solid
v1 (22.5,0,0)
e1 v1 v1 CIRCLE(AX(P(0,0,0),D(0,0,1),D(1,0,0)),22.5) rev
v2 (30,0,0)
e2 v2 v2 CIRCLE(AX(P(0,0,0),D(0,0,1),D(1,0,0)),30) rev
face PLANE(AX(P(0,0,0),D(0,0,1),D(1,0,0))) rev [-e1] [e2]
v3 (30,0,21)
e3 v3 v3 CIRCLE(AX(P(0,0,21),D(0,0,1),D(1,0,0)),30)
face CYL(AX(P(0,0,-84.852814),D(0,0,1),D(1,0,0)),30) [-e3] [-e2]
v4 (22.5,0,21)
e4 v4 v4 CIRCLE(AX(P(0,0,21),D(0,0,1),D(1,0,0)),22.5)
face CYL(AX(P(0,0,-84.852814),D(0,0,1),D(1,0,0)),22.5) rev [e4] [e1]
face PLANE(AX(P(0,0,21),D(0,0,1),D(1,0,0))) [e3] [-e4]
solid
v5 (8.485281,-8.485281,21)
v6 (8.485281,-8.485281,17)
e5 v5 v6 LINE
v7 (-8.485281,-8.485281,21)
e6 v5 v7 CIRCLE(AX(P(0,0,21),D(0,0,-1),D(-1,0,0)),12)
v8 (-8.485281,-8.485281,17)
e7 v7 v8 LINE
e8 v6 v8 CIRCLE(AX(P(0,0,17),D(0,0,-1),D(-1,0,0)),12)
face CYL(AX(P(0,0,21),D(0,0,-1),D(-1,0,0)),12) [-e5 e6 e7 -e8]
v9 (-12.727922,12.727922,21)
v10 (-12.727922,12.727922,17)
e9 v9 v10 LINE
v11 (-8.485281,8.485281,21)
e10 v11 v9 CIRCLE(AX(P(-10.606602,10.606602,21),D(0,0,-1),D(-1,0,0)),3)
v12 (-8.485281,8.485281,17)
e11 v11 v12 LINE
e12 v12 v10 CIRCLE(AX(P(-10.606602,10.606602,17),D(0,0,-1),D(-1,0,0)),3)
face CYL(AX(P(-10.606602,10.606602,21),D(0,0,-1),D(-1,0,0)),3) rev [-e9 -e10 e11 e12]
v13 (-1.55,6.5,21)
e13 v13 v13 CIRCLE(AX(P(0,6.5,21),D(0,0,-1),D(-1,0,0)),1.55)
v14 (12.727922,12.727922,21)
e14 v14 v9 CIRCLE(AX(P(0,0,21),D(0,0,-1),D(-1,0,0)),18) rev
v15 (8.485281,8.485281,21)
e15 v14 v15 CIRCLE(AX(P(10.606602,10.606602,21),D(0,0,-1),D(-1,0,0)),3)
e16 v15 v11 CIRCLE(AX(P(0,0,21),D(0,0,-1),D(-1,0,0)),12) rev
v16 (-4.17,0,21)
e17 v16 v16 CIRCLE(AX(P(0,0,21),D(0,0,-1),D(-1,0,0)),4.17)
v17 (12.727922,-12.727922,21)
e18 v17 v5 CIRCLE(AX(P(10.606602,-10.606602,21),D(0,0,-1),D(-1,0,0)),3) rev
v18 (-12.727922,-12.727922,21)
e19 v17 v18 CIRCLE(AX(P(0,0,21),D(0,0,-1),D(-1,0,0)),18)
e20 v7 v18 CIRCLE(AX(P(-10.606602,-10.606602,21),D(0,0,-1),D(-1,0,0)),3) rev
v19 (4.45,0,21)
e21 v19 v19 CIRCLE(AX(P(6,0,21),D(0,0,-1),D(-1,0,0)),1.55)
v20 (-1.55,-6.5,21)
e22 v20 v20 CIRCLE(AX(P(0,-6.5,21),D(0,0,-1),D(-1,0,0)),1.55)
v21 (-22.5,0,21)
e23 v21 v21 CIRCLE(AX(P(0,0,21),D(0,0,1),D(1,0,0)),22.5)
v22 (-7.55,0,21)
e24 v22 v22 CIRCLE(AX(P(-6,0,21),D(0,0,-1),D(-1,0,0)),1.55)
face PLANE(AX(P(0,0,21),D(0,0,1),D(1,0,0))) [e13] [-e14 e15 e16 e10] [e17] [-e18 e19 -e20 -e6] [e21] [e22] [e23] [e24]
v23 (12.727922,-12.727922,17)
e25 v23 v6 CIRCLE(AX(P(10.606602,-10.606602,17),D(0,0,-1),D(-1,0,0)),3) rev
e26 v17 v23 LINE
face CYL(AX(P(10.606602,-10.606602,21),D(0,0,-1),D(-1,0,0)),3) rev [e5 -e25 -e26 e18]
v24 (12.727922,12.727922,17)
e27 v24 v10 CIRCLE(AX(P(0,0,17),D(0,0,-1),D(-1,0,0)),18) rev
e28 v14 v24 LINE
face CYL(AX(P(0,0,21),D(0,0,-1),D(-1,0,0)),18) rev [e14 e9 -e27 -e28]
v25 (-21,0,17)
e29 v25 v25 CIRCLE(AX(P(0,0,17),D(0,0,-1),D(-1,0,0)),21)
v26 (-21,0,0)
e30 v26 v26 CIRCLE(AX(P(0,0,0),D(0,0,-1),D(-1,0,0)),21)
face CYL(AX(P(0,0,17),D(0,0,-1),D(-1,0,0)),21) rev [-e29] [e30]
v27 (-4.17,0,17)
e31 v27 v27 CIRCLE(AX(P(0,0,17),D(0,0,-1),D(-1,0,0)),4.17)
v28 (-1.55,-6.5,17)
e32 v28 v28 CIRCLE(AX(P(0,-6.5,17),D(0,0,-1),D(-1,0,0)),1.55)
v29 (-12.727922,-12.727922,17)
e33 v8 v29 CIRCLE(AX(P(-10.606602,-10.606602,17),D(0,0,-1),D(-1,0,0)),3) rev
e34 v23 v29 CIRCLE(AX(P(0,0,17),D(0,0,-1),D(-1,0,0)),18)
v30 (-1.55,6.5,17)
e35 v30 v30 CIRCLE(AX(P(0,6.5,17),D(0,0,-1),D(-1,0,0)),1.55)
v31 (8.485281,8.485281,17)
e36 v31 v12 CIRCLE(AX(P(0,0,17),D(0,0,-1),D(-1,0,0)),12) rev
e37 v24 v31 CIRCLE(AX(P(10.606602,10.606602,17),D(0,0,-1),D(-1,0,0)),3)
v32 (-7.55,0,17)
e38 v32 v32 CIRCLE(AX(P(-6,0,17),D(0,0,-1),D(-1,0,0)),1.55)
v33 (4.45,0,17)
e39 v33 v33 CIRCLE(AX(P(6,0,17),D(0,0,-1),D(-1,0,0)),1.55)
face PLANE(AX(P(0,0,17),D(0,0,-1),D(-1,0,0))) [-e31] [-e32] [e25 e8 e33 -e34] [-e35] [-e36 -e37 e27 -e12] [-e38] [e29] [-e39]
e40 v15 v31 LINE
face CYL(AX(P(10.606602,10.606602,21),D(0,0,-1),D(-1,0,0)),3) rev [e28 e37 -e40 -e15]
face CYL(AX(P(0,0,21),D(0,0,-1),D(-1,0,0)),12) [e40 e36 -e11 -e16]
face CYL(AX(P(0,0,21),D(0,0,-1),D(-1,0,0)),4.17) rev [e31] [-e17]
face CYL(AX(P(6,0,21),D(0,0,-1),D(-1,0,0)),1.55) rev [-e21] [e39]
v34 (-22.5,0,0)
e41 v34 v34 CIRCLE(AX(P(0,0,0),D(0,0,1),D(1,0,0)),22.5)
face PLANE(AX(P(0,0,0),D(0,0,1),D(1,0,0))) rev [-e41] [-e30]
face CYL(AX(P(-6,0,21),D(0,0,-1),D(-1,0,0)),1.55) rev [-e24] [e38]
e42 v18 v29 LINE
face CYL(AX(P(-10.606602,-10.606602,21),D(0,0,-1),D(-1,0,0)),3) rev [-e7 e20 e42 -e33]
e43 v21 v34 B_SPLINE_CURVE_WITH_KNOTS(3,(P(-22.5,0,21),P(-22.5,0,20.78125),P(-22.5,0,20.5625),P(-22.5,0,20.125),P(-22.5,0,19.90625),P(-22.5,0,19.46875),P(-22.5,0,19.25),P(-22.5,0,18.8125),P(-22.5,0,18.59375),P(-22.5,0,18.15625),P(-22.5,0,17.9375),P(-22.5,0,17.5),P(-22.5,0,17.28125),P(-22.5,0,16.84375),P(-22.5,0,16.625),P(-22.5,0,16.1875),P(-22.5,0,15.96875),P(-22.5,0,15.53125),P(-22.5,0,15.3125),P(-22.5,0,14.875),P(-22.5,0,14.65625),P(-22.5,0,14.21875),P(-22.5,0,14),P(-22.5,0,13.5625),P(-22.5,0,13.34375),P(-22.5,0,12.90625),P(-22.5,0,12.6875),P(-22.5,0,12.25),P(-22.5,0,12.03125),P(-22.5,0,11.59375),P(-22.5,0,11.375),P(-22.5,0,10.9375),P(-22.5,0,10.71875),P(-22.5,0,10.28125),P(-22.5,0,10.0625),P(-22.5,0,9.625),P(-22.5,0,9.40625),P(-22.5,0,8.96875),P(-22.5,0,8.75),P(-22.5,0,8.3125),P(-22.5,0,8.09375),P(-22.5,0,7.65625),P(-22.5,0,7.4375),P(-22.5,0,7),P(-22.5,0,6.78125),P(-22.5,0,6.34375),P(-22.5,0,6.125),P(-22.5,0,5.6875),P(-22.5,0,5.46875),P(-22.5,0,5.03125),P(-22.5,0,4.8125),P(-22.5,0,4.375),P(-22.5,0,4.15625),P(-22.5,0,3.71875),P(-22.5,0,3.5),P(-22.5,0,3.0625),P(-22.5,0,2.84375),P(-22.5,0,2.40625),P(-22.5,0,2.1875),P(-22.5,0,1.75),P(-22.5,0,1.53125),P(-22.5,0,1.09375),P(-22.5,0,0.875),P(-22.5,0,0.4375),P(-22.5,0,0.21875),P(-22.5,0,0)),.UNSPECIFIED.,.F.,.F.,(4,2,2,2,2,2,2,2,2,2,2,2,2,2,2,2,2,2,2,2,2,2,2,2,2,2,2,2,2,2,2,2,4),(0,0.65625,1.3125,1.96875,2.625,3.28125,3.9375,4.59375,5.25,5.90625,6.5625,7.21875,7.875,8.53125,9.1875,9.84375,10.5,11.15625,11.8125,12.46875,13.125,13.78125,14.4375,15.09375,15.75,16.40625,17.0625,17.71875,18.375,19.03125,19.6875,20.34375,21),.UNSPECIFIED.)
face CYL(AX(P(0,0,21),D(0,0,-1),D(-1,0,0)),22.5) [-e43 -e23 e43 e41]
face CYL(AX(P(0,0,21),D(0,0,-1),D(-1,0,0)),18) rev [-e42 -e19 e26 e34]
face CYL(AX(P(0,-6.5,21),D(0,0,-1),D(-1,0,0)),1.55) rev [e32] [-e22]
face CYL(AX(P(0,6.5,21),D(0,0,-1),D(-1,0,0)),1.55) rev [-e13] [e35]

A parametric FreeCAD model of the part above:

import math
import FreeCAD as App
import Part
import Sketcher
from FreeCAD import Vector

doc = App.newDocument("Part")
body = doc.addObject("PartDesign::Body", "Body")

# Sketch on XY plane
sketch1 = body.newObject("Sketcher::SketchObject", "Sketch")
sketch1.AttachmentSupport = (doc.getObject("XY_Plane"), [""])
sketch1.MapMode = "FlatFace"
sketch1.addGeometry(Part.Circle(Vector(0, 0, 0), Vector(0, 0, 1), 22), False)
sketch1.addConstraint([
    Sketcher.Constraint("Coincident", 0, 3, -1, 1),
    Sketcher.Constraint("Diameter", 0, 45.0),
])
pad1 = body.newObject("PartDesign::Pad", "Pad")
pad1.Profile = sketch1
pad1.Length = 21

# Sketch on XY plane
sketch2 = body.newObject("Sketcher::SketchObject", "Sketch001")
sketch2.AttachmentSupport = (doc.getObject("XY_Plane"), [""])
sketch2.MapMode = "FlatFace"
sketch2.addGeometry(Part.Circle(Vector(0, 0, 0), Vector(0, 0, 1), 21), False)
sketch2.addConstraint([
    Sketcher.Constraint("Coincident", 0, 3, -1, 1),
    Sketcher.Constraint("Diameter", 0, 42.0),
])
pocket1 = body.newObject("PartDesign::Pocket", "Pocket")
pocket1.Profile = sketch2
pocket1.Length = 17
pocket1.Reversed = True

# Sketch on XY plane
sketch3 = body.newObject("Sketcher::SketchObject", "Sketch002")
sketch3.AttachmentSupport = (doc.getObject("XY_Plane"), [""])
sketch3.MapMode = "FlatFace"
sketch3.AttachmentOffset = App.Placement(Vector(0, 0, 17), App.Rotation())
sketch3.addGeometry([
    Part.ArcOfCircle(Part.Circle(Vector(0, 0, 0), Vector(0, 0, 1), 12), math.radians(45), math.radians(135)),  # 0
    Part.ArcOfCircle(Part.Circle(Vector(-10.6, 10.6, 0), Vector(0, 0, 1), 3), math.radians(135), math.radians(315)),  # 1
    Part.ArcOfCircle(Part.Circle(Vector(0, 0, 0), Vector(0, 0, 1), 18), math.radians(45), math.radians(135)),  # 2
    Part.ArcOfCircle(Part.Circle(Vector(10.6, 10.6, 0), Vector(0, 0, 1), 3), math.radians(-135), math.radians(45)),  # 3
    Part.Circle(Vector(0, 0, 0), Vector(0, 0, 1), 4.2),  # 4
    Part.Circle(Vector(-6, 0, 0), Vector(0, 0, 1), 1.6),  # 5
    Part.Circle(Vector(0, 6.5, 0), Vector(0, 0, 1), 1.6),  # 6
    Part.Circle(Vector(6, 0, 0), Vector(0, 0, 1), 1.6),  # 7
    Part.Circle(Vector(0, -6.5, 0), Vector(0, 0, 1), 1.6),  # 8
    Part.ArcOfCircle(Part.Circle(Vector(10.6, -10.6, 0), Vector(0, 0, 1), 3), math.radians(-45), math.radians(135)),  # 9
    Part.ArcOfCircle(Part.Circle(Vector(0, 0, 0), Vector(0, 0, 1), 18), math.radians(-135), math.radians(-45)),  # 10
    Part.ArcOfCircle(Part.Circle(Vector(-10.6, -10.6, 0), Vector(0, 0, 1), 3), math.radians(45), math.radians(225)),  # 11
    Part.ArcOfCircle(Part.Circle(Vector(0, 0, 0), Vector(0, 0, 1), 12), math.radians(-135), math.radians(-45)),  # 12
], False)
sketch3.addConstraint([
    Sketcher.Constraint("Tangent", 0, 2, 1, 2),
    Sketcher.Constraint("Tangent", 1, 1, 2, 2),
    Sketcher.Constraint("Tangent", 2, 1, 3, 2),
    Sketcher.Constraint("Tangent", 3, 1, 0, 1),
    Sketcher.Constraint("Tangent", 9, 1, 10, 2),
    Sketcher.Constraint("Tangent", 10, 1, 11, 2),
    Sketcher.Constraint("Tangent", 11, 1, 12, 1),
    Sketcher.Constraint("Tangent", 12, 2, 9, 2),
    Sketcher.Constraint("Coincident", 0, 3, -1, 1),
    Sketcher.Constraint("Coincident", 2, 3, -1, 1),
    Sketcher.Constraint("Coincident", 4, 3, -1, 1),
    Sketcher.Constraint("Coincident", 10, 3, -1, 1),
    Sketcher.Constraint("Coincident", 12, 3, -1, 1),
    Sketcher.Constraint("Equal", 5, 6),
    Sketcher.Constraint("Equal", 6, 7),
    Sketcher.Constraint("Equal", 7, 8),
    Sketcher.Constraint("Equal", 3, 9),
    Sketcher.Constraint("Equal", 2, 10),
    Sketcher.Constraint("Symmetric", 5, 3, 7, 3, -1, 1),
    Sketcher.Constraint("Symmetric", 6, 3, 8, 3, -1, 1),
    Sketcher.Constraint("PointOnObject", 5, 3, -1),
    Sketcher.Constraint("PointOnObject", 6, 3, -2),
    Sketcher.Constraint("Horizontal", 1, 3, 3, 3),
    Sketcher.Constraint("Horizontal", 9, 3, 11, 3),
    Sketcher.Constraint("Vertical", 3, 3, 9, 3),
    Sketcher.Constraint("Radius", 0, 12.0),
    Sketcher.Constraint("Radius", 1, 3.0),
    Sketcher.Constraint("Diameter", 5, 3.1),
    Sketcher.Constraint("Diameter", 4, 8.34),
    Sketcher.Constraint("DistanceX", 5, 3, -1, 1, 6.0),
    Sketcher.Constraint("DistanceY", -1, 1, 6, 3, 6.5),
    Sketcher.Constraint("DistanceX", 1, 3, -1, 1, 10.606602),
])
pocket2 = body.newObject("PartDesign::Pocket", "Pocket001")
pocket2.Profile = sketch3
pocket2.Type = "ThroughAll"
pocket2.Reversed = True
body2 = doc.addObject("PartDesign::Body", "Body001")

# Sketch on XY plane
sketch4 = body2.newObject("Sketcher::SketchObject", "Sketch003")
sketch4.AttachmentSupport = (doc.getObject("XY_Plane001"), [""])
sketch4.MapMode = "FlatFace"
sketch4.AttachmentOffset = App.Placement(Vector(0, 0, 21), App.Rotation())
sketch4.addGeometry([
    Part.Circle(Vector(0, 0, 0), Vector(0, 0, 1), 30),
    Part.Circle(Vector(0, 0, 0), Vector(0, 0, 1), 22),
], False)
sketch4.addConstraint([
    Sketcher.Constraint("Coincident", 0, 3, -1, 1),
    Sketcher.Constraint("Coincident", 1, 3, -1, 1),
    Sketcher.Constraint("Diameter", 0, 60.0),
    Sketcher.Constraint("Diameter", 1, 45.0),
])
pad2 = body2.newObject("PartDesign::Pad", "Pad001")
pad2.Profile = sketch4
pad2.Length = 21
pad2.Reversed = True

doc.recompute()
